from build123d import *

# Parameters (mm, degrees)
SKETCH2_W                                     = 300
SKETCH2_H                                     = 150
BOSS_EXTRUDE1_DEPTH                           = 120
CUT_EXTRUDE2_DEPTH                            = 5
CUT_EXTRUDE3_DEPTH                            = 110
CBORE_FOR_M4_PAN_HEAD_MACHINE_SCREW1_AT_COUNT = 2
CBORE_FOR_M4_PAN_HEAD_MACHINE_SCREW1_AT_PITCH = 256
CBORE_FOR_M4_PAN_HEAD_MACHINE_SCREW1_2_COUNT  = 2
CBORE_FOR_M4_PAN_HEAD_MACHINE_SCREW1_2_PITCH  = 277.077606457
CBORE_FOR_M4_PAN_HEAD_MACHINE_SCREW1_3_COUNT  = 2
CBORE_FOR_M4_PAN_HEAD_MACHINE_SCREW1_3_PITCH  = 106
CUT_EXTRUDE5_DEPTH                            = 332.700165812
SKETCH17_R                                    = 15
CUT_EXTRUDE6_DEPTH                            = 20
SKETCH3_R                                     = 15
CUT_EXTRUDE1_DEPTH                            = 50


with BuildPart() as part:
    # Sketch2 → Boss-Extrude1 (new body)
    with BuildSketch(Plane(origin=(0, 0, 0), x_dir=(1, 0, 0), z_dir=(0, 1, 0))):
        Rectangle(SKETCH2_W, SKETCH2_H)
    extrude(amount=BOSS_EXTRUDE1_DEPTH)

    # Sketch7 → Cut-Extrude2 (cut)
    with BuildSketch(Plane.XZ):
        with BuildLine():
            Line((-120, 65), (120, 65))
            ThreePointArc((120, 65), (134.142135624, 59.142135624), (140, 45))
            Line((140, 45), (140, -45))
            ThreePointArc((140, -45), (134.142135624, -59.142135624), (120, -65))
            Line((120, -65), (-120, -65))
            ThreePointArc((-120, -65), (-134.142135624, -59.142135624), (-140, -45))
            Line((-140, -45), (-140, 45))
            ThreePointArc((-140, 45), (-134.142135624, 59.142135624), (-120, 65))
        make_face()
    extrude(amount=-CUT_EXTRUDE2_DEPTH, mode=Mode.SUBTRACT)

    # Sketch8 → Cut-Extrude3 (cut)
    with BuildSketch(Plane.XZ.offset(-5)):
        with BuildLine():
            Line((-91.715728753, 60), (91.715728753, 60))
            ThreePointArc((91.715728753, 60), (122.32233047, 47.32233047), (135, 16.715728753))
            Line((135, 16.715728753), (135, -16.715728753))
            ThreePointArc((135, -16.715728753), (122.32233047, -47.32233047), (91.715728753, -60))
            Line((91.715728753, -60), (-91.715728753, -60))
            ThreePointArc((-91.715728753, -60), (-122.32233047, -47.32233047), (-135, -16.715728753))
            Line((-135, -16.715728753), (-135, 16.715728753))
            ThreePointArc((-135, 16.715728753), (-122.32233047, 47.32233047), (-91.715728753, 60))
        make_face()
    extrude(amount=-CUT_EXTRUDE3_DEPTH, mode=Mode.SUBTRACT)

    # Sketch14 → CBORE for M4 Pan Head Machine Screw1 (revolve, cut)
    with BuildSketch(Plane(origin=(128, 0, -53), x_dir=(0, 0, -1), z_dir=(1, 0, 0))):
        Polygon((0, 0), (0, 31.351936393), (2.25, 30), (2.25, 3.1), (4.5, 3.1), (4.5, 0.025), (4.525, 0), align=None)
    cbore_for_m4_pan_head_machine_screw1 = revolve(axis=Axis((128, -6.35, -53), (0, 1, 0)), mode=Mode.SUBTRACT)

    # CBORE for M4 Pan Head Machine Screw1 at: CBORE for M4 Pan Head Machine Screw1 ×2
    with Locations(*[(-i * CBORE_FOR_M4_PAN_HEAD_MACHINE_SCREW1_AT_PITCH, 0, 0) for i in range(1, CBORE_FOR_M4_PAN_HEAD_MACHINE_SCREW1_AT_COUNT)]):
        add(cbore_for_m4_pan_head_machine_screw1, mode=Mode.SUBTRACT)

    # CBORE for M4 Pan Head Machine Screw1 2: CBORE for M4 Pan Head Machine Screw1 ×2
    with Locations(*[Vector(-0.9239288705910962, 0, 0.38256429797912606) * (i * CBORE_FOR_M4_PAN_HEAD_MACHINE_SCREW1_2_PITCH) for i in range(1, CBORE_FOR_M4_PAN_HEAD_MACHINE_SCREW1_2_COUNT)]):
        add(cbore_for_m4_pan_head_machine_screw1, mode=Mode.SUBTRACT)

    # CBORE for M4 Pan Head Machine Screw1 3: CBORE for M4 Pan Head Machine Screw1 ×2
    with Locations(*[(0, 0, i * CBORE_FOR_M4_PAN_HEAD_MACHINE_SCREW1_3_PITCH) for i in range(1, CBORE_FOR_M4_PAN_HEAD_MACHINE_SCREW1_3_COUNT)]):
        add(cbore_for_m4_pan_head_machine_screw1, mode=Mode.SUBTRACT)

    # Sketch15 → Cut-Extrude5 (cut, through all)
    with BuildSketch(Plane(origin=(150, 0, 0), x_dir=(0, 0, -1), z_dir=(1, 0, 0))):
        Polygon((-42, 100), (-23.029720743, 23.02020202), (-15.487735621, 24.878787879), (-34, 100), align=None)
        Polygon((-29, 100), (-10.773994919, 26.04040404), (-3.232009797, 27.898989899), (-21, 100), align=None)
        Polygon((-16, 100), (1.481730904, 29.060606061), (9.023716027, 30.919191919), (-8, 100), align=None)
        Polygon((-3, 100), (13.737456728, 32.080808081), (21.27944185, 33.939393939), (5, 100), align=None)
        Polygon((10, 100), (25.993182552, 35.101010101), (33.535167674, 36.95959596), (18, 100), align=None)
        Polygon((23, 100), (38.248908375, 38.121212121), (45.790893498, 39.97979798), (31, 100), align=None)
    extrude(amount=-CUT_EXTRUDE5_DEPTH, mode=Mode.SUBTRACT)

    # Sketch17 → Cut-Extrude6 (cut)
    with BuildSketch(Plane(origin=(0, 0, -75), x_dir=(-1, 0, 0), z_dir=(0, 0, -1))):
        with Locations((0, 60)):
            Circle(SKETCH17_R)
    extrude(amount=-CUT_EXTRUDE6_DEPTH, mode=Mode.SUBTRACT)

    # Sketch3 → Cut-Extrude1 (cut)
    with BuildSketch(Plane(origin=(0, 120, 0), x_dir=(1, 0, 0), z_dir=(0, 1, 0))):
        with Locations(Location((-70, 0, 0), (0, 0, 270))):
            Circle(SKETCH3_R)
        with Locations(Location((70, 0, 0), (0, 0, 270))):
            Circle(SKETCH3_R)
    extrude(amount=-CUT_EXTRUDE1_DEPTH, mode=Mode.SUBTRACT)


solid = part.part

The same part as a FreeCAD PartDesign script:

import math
import FreeCAD as App
import Part
import Sketcher
from FreeCAD import Vector
Q = App.Units.Quantity


def add_polygon(sketch, points):
    """Adds a closed chain of lines whose ends are joined by coincident constraints."""
    first, n = sketch.GeometryCount, len(points)
    for a, b in zip(points, points[1:] + points[:1]):
        sketch.addGeometry(Part.LineSegment(App.Vector(*a, 0), App.Vector(*b, 0)), False)
    for i in range(n):
        sketch.addConstraint(Sketcher.Constraint("Coincident", first + i, 2, first + (i + 1) % n, 1))

doc = App.newDocument("Part")
body = doc.addObject("PartDesign::Body", "Body")

# Sketch on XZ plane
sketch1 = body.newObject("Sketcher::SketchObject", "Sketch")
sketch1.AttachmentSupport = (doc.getObject("XZ_Plane"), [""])
sketch1.MapMode = "FlatFace"
add_polygon(sketch1, [(-150, -75), (-150, 75), (150, 75), (150, -75)])  # lines 0-3
sketch1.addConstraint([
    Sketcher.Constraint("Vertical", 0),
    Sketcher.Constraint("Horizontal", 1),
    Sketcher.Constraint("Vertical", 2),
    Sketcher.Constraint("Horizontal", 3),
    Sketcher.Constraint("Symmetric", 0, 2, 2, 2, -1, 1),
    Sketcher.Constraint("DistanceX", 1, 1, 1, 2, 300.0),
    Sketcher.Constraint("DistanceY", 0, 1, 0, 2, 150.0),
])
pad1 = body.newObject("PartDesign::Pad", "Pad")
pad1.Profile = sketch1
pad1.Length = 120
pad1.Reversed = True

# Sketch on XZ plane
sketch2 = body.newObject("Sketcher::SketchObject", "Sketch001")
sketch2.AttachmentSupport = (doc.getObject("XZ_Plane"), [""])
sketch2.MapMode = "FlatFace"
sketch2.addGeometry([
    Part.LineSegment(Vector(120, 65, 0), Vector(-120, 65, 0)),  # 0
    Part.ArcOfCircle(Part.Circle(Vector(-120, 45, 0), Vector(0, 0, 1), 20), math.radians(90), math.radians(180)),  # 1
    Part.LineSegment(Vector(-140, 45, 0), Vector(-140, -45, 0)),  # 2
    Part.ArcOfCircle(Part.Circle(Vector(-120, -45, 0), Vector(0, 0, 1), 20), math.radians(180), math.radians(270)),  # 3
    Part.LineSegment(Vector(-120, -65, 0), Vector(120, -65, 0)),  # 4
    Part.ArcOfCircle(Part.Circle(Vector(120, -45, 0), Vector(0, 0, 1), 20), math.radians(-90), math.radians(0)),  # 5
    Part.LineSegment(Vector(140, -45, 0), Vector(140, 45, 0)),  # 6
    Part.ArcOfCircle(Part.Circle(Vector(120, 45, 0), Vector(0, 0, 1), 20), math.radians(0), math.radians(90)),  # 7
], False)
sketch2.addConstraint([
    Sketcher.Constraint("Tangent", 0, 2, 1, 1),
    Sketcher.Constraint("Tangent", 1, 2, 2, 1),
    Sketcher.Constraint("Tangent", 2, 2, 3, 1),
    Sketcher.Constraint("Tangent", 3, 2, 4, 1),
    Sketcher.Constraint("Tangent", 4, 2, 5, 1),
    Sketcher.Constraint("Tangent", 5, 2, 6, 1),
    Sketcher.Constraint("Tangent", 6, 2, 7, 1),
    Sketcher.Constraint("Tangent", 7, 2, 0, 1),
    Sketcher.Constraint("Horizontal", 0),
    Sketcher.Constraint("Vertical", 2),
    Sketcher.Constraint("Horizontal", 4),
    Sketcher.Constraint("Vertical", 6),
    Sketcher.Constraint("Equal", 1, 3),
    Sketcher.Constraint("Equal", 3, 5),
    Sketcher.Constraint("Equal", 5, 7),
    Sketcher.Constraint("Symmetric", 1, 3, 5, 3, -1, 1),
    Sketcher.Constraint("Radius", 1, 20.0),
    Sketcher.Constraint("DistanceX", 0, 2, 0, 1, 240.0),
    Sketcher.Constraint("DistanceY", 2, 2, 2, 1, 90.0),
])
pocket1 = body.newObject("PartDesign::Pocket", "Pocket")
pocket1.Profile = sketch2
pocket1.Length = 5

# Sketch on XZ plane
sketch3 = body.newObject("Sketcher::SketchObject", "Sketch002")
sketch3.AttachmentSupport = (doc.getObject("XZ_Plane"), [""])
sketch3.MapMode = "FlatFace"
sketch3.AttachmentOffset = App.Placement(Vector(0, 0, -5), App.Rotation())
sketch3.addGeometry([
    Part.LineSegment(Vector(92, 60, 0), Vector(-92, 60, 0)),  # 0
    Part.ArcOfCircle(Part.Circle(Vector(-92, 17, 0), Vector(0, 0, 1), 43), math.radians(90), math.radians(180)),  # 1
    Part.LineSegment(Vector(-135, 17, 0), Vector(-135, -17, 0)),  # 2
    Part.ArcOfCircle(Part.Circle(Vector(-92, -17, 0), Vector(0, 0, 1), 43), math.radians(-180), math.radians(-90)),  # 3
    Part.LineSegment(Vector(-92, -60, 0), Vector(92, -60, 0)),  # 4
    Part.ArcOfCircle(Part.Circle(Vector(92, -17, 0), Vector(0, 0, 1), 43), math.radians(-90), math.radians(0)),  # 5
    Part.LineSegment(Vector(135, -17, 0), Vector(135, 17, 0)),  # 6
    Part.ArcOfCircle(Part.Circle(Vector(92, 17, 0), Vector(0, 0, 1), 43), math.radians(0), math.radians(90)),  # 7
], False)
sketch3.addConstraint([
    Sketcher.Constraint("Tangent", 0, 2, 1, 1),
    Sketcher.Constraint("Tangent", 1, 2, 2, 1),
    Sketcher.Constraint("Tangent", 2, 2, 3, 1),
    Sketcher.Constraint("Tangent", 3, 2, 4, 1),
    Sketcher.Constraint("Tangent", 4, 2, 5, 1),
    Sketcher.Constraint("Tangent", 5, 2, 6, 1),
    Sketcher.Constraint("Tangent", 6, 2, 7, 1),
    Sketcher.Constraint("Tangent", 7, 2, 0, 1),
    Sketcher.Constraint("Horizontal", 0),
    Sketcher.Constraint("Vertical", 2),
    Sketcher.Constraint("Horizontal", 4),
    Sketcher.Constraint("Vertical", 6),
    Sketcher.Constraint("Equal", 1, 3),
    Sketcher.Constraint("Equal", 3, 5),
    Sketcher.Constraint("Equal", 5, 7),
    Sketcher.Constraint("Symmetric", 1, 3, 5, 3, -1, 1),
    Sketcher.Constraint("DistanceY", -1, 1, 0, 2, 60.0),
    Sketcher.Constraint("DistanceX", 1, 2, -1, 1, 135.0),
    Sketcher.Constraint("Radius", 1, 43.284271),
])
pocket2 = body.newObject("PartDesign::Pocket", "Pocket001")
pocket2.Profile = sketch3
pocket2.Length = 110

# Sketch on YZ plane
sketch4 = body.newObject("Sketcher::SketchObject", "Sketch003")
sketch4.AttachmentSupport = (doc.getObject("YZ_Plane"), [""])
sketch4.MapMode = "FlatFace"
sketch4.AttachmentOffset = App.Placement(Vector(0, 0, 128), App.Rotation())
add_polygon(sketch4, [(31.352, -53), (0, -53), (0, -57.525), (0.025, -57.5), (3.1, -57.5), (3.1, -55.25), (30, -55.25)])  # lines 0-6
sketch4.addGeometry(Part.LineSegment(Vector(0, -53, 0), Vector(31.352, -53, 0)), True)  # axis
sketch4.addConstraint([
    Sketcher.Constraint("Horizontal", 0),
    Sketcher.Constraint("Vertical", 1),
    Sketcher.Constraint("Horizontal", 3),
    Sketcher.Constraint("Vertical", 4),
    Sketcher.Constraint("Horizontal", 5),
    Sketcher.Constraint("Horizontal", 7),
    Sketcher.Constraint("Coincident", 7, 1, 0, 2),
    Sketcher.Constraint("PointOnObject", 0, 2, -2),
    Sketcher.Constraint("Equal", 0, 7),
    Sketcher.Constraint("Angle", 2, Q("45 deg")),
    Sketcher.Constraint("Angle", 6, Q("59 deg")),
    Sketcher.Constraint("DistanceX", 5, 1, 5, 2, 26.9),
    Sketcher.Constraint("DistanceY", 0, 2, -1, 1, 53.0),
    Sketcher.Constraint("DistanceX", -1, 1, 5, 2, 30.0),
    Sketcher.Constraint("DistanceY", 4, 1, 4, 2, 2.25),
    Sketcher.Constraint("DistanceY", 2, 2, -1, 1, 57.5),
    Sketcher.Constraint("DistanceX", 3, 1, 3, 2, 3.075),
])
groove = body.newObject("PartDesign::Groove", "Groove")
groove.Profile = sketch4
groove.ReferenceAxis = (sketch4, ["Axis0"])
groove.Angle = 360
doc.recompute()

linearpattern = body.newObject("PartDesign::LinearPattern", "LinearPattern")
linearpattern.Originals = [groove]
linearpattern.Direction = (doc.getObject("X_Axis"), [""])
linearpattern.Mode = "offset"
linearpattern.Offset = 256
linearpattern.Occurrences = 2
linearpattern.Reversed = True
body.Tip = linearpattern
doc.recompute()

datumline = body.newObject("PartDesign::Line", "DatumLine")
datumline.Placement = App.Placement(Vector(0, 0, 0), App.Rotation(Vector(0, 0, 1), Vector(-0.923928871, 0, 0.382564298)))
linearpattern2 = body.newObject("PartDesign::LinearPattern", "LinearPattern001")
linearpattern2.Originals = [groove]
linearpattern2.Direction = (datumline, [""])
linearpattern2.Mode = "offset"
linearpattern2.Offset = 277.077606
linearpattern2.Occurrences = 2
body.Tip = linearpattern2
doc.recompute()

linearpattern3 = body.newObject("PartDesign::LinearPattern", "LinearPattern002")
linearpattern3.Originals = [groove]
linearpattern3.Direction = (doc.getObject("Z_Axis"), [""])
linearpattern3.Mode = "offset"
linearpattern3.Offset = 106
linearpattern3.Occurrences = 2
body.Tip = linearpattern3

# Sketch on YZ plane
sketch5 = body.newObject("Sketcher::SketchObject", "Sketch004")
sketch5.AttachmentSupport = (doc.getObject("YZ_Plane"), [""])
sketch5.MapMode = "FlatFace"
sketch5.AttachmentOffset = App.Placement(Vector(0, 0, 150), App.Rotation())
add_polygon(sketch5, [(100, 42), (23, 23), (25, 15), (100, 34)])  # lines 0-3
add_polygon(sketch5, [(100, 29), (26, 11), (28, 3), (100, 21)])  # lines 4-7
add_polygon(sketch5, [(100, 16), (29, -1), (31, -9), (100, 8)])  # lines 8-11
add_polygon(sketch5, [(100, 3), (32, -14), (34, -21), (100, -5)])  # lines 12-15
add_polygon(sketch5, [(100, -10), (35, -26), (37, -34), (100, -18)])  # lines 16-19
add_polygon(sketch5, [(100, -23), (38, -38), (40, -46), (100, -31)])  # lines 20-23
sketch5.addConstraint([
    Sketcher.Constraint("Vertical", 3),
    Sketcher.Constraint("Vertical", 7),
    Sketcher.Constraint("Vertical", 11),
    Sketcher.Constraint("Vertical", 15),
    Sketcher.Constraint("Vertical", 19),
    Sketcher.Constraint("Vertical", 23),
    Sketcher.Constraint("Perpendicular", 0, 1),
    Sketcher.Constraint("Perpendicular", 1, 2),
    Sketcher.Constraint("Parallel", 2, 4),
    Sketcher.Constraint("Perpendicular", 4, 5),
    Sketcher.Constraint("Perpendicular", 5, 6),
    Sketcher.Constraint("Parallel", 6, 8),
    Sketcher.Constraint("Perpendicular", 8, 9),
    Sketcher.Constraint("Perpendicular", 9, 10),
    Sketcher.Constraint("Parallel", 10, 12),
    Sketcher.Constraint("Perpendicular", 12, 13),
    Sketcher.Constraint("Perpendicular", 13, 14),
    Sketcher.Constraint("Parallel", 14, 16),
    Sketcher.Constraint("Perpendicular", 16, 17),
    Sketcher.Constraint("Perpendicular", 17, 18),
    Sketcher.Constraint("Parallel", 18, 20),
    Sketcher.Constraint("Perpendicular", 20, 21),
    Sketcher.Constraint("Perpendicular", 21, 22),
    Sketcher.Constraint("Vertical", 3, 2, 6, 2),
    Sketcher.Constraint("Vertical", 7, 2, 10, 2),
    Sketcher.Constraint("Vertical", 11, 2, 14, 2),
    Sketcher.Constraint("Vertical", 15, 2, 18, 2),
    Sketcher.Constraint("Vertical", 19, 2, 22, 2),
    Sketcher.Constraint("Equal", 3, 7),
    Sketcher.Constraint("Equal", 7, 11),
    Sketcher.Constraint("Equal", 11, 15),
    Sketcher.Constraint("Equal", 15, 19),
    Sketcher.Constraint("Equal", 19, 23),
    Sketcher.Constraint("DistanceY", 3, 1, 3, 2, 8.0),
    Sketcher.Constraint("DistanceX", -1, 1, 2, 2, 100.0),
    Sketcher.Constraint("DistanceY", -1, 1, 2, 2, 34.0),
    Sketcher.Constraint("DistanceY", -1, 1, 6, 2, 21.0),
    Sketcher.Constraint("DistanceY", -1, 1, 10, 2, 8.0),
    Sketcher.Constraint("DistanceY", 14, 2, -1, 1, 5.0),
    Sketcher.Constraint("DistanceY", 18, 2, -1, 1, 18.0),
    Sketcher.Constraint("DistanceY", 22, 2, -1, 1, 31.0),
    Sketcher.Constraint("Distance", 2, 77.368601),
    Sketcher.Constraint("Distance", 0, 79.28279),
    Sketcher.Constraint("Distance", 12, 69.951119),
    Sketcher.Constraint("DistanceX", -1, 1, 5, 2, 27.89899),
    Sketcher.Constraint("DistanceY", 8, 2, -1, 1, 1.481731),
    Sketcher.Constraint("DistanceX", -1, 1, 16, 2, 35.10101),
    Sketcher.Constraint("DistanceY", 20, 2, -1, 1, 38.248908),
])
pocket3 = body.newObject("PartDesign::Pocket", "Pocket002")
pocket3.Profile = sketch5
pocket3.Type = "ThroughAll"

# Sketch on XY plane
sketch6 = body.newObject("Sketcher::SketchObject", "Sketch005")
sketch6.AttachmentSupport = (doc.getObject("XY_Plane"), [""])
sketch6.MapMode = "FlatFace"
sketch6.AttachmentOffset = App.Placement(Vector(0, 0, -75), App.Rotation())
sketch6.addGeometry(Part.Circle(Vector(0, 60, 0), Vector(0, 0, 1), 15), False)
sketch6.addConstraint([
    Sketcher.Constraint("PointOnObject", 0, 3, -2),
    Sketcher.Constraint("Diameter", 0, 30.0),
    Sketcher.Constraint("DistanceY", -1, 1, 0, 3, 60.0),
])
pocket4 = body.newObject("PartDesign::Pocket", "Pocket003")
pocket4.Profile = sketch6
pocket4.Length = 20
pocket4.Reversed = True

# Sketch on XZ plane
sketch7 = body.newObject("Sketcher::SketchObject", "Sketch006")
sketch7.AttachmentSupport = (doc.getObject("XZ_Plane"), [""])
sketch7.MapMode = "FlatFace"
sketch7.AttachmentOffset = App.Placement(Vector(0, 0, -120), App.Rotation())
sketch7.addGeometry([
    Part.Circle(Vector(-70, 0, 0), Vector(0, 0, 1), 15),
    Part.Circle(Vector(70, 0, 0), Vector(0, 0, 1), 15),
], False)
sketch7.addConstraint([
    Sketcher.Constraint("Equal", 0, 1),
    Sketcher.Constraint("Symmetric", 0, 3, 1, 3, -1, 1),
    Sketcher.Constraint("PointOnObject", 0, 3, -1),
    Sketcher.Constraint("Diameter", 0, 30.0),
    Sketcher.Constraint("DistanceX", 0, 3, -1, 1, 70.0),
])
pocket5 = body.newObject("PartDesign::Pocket", "Pocket004")
pocket5.Profile = sketch7
pocket5.Length = 50
pocket5.Reversed = True

doc.recompute()
